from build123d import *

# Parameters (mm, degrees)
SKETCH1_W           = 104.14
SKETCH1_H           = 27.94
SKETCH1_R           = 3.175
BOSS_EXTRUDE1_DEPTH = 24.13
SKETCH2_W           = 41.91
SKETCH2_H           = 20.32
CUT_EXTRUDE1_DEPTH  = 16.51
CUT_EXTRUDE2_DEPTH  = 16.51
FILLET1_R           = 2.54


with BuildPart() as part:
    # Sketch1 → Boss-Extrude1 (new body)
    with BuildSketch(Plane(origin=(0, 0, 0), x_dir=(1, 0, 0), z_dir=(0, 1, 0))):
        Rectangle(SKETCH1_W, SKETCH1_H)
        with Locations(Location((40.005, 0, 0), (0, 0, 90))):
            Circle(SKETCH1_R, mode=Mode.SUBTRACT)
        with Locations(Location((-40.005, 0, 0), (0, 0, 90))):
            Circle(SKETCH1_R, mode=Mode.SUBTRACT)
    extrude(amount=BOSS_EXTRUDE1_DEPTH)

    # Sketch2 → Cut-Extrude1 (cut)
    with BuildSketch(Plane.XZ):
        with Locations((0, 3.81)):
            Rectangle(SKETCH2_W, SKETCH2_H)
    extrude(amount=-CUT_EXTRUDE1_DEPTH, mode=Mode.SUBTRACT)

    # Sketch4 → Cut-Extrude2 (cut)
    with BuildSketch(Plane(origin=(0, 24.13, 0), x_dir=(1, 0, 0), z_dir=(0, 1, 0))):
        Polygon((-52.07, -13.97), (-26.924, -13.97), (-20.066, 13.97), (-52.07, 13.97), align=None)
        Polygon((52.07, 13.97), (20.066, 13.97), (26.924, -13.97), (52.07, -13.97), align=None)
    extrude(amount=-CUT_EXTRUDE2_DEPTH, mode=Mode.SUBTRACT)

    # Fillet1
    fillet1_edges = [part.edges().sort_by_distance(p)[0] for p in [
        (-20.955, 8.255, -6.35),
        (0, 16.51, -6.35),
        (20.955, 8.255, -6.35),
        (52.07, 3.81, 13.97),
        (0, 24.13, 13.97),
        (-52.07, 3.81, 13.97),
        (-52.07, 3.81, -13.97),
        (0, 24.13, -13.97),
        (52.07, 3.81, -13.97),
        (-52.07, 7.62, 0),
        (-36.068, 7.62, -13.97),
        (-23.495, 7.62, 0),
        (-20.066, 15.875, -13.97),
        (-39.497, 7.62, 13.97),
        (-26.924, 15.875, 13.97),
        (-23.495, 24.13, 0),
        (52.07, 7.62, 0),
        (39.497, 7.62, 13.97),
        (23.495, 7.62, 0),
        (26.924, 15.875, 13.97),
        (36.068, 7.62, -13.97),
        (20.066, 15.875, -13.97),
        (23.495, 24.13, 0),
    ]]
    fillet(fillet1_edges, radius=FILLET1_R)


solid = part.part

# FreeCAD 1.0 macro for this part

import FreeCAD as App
import Part
import Sketcher
from FreeCAD import Vector
Q = App.Units.Quantity


def edges_at(feature, points):
    """Names of the edges that pass closest to the given points."""
    edges = feature.Shape.Edges
    near = lambda p: min(range(len(edges)), key=lambda i: edges[i].distToShape(Part.Vertex(*p))[0])
    return sorted({f"Edge{near(p) + 1}" for p in points})


def add_polygon(sketch, points):
    """Adds a closed chain of lines whose ends are joined by coincident constraints."""
    first, n = sketch.GeometryCount, len(points)
    for a, b in zip(points, points[1:] + points[:1]):
        sketch.addGeometry(Part.LineSegment(App.Vector(*a, 0), App.Vector(*b, 0)), False)
    for i in range(n):
        sketch.addConstraint(Sketcher.Constraint("Coincident", first + i, 2, first + (i + 1) % n, 1))

doc = App.newDocument("Part")
body = doc.addObject("PartDesign::Body", "Body")

sketch1 = body.newObject("Sketcher::SketchObject", "Sketch")
sketch1.AttachmentSupport = (doc.getObject("XZ_Plane"), [""])
sketch1.MapMode = "FlatFace"
add_polygon(sketch1, [(-52.1, -14), (-52.1, 14), (52.1, 14), (52.1, -14)])
sketch1.addGeometry(Part.Circle(Vector(-40, 0, 0), Vector(0, 0, 1), 3.2), False)
sketch1.addGeometry(Part.Circle(Vector(40, 0, 0), Vector(0, 0, 1), 3.2), False)
sketch1.addConstraint(Sketcher.Constraint("Vertical", 0))
sketch1.addConstraint(Sketcher.Constraint("Horizontal", 1))
sketch1.addConstraint(Sketcher.Constraint("Vertical", 2))
sketch1.addConstraint(Sketcher.Constraint("Horizontal", 3))
sketch1.addConstraint(Sketcher.Constraint("Equal", 4, 5))
sketch1.addConstraint(Sketcher.Constraint("Symmetric", 4, 3, 5, 3, -1, 1))
sketch1.addConstraint(Sketcher.Constraint("Symmetric", 0, 2, 2, 2, -1, 1))
sketch1.addConstraint(Sketcher.Constraint("PointOnObject", 4, 3, -1))
sketch1.addConstraint(Sketcher.Constraint("Diameter", 4, Q("0.25 in")))
sketch1.addConstraint(Sketcher.Constraint("DistanceX", 1, 1, 1, 2, Q("4.1 in")))
sketch1.addConstraint(Sketcher.Constraint("DistanceY", 0, 1, 0, 2, Q("1.1 in")))
sketch1.addConstraint(Sketcher.Constraint("DistanceX", 4, 3, 5, 3, Q("3.15 in")))
pad1 = body.newObject("PartDesign::Pad", "Pad")
pad1.Profile = sketch1
pad1.Length = Q("0.95 in")
pad1.Reversed = True

sketch2 = body.newObject("Sketcher::SketchObject", "Sketch001")
sketch2.AttachmentSupport = (doc.getObject("XZ_Plane"), [""])
sketch2.MapMode = "FlatFace"
add_polygon(sketch2, [(-21, 14), (-21, -6), (21, -6), (21, 14)])
sketch2.addConstraint(Sketcher.Constraint("Vertical", 0))
sketch2.addConstraint(Sketcher.Constraint("Horizontal", 1))
sketch2.addConstraint(Sketcher.Constraint("Vertical", 2))
sketch2.addConstraint(Sketcher.Constraint("Horizontal", 3))
sketch2.addConstraint(Sketcher.Constraint("DistanceY", 0, 2, 0, 1, Q("0.8 in")))
sketch2.addConstraint(Sketcher.Constraint("DistanceX", 1, 1, 1, 2, Q("1.65 in")))
sketch2.addConstraint(Sketcher.Constraint("DistanceY", 0, 2, -1, 1, Q("0.25 in")))
sketch2.addConstraint(Sketcher.Constraint("DistanceX", 0, 2, -1, 1, Q("0.825 in")))
pocket1 = body.newObject("PartDesign::Pocket", "Pocket")
pocket1.Profile = sketch2
pocket1.Length = Q("0.65 in")

sketch3 = body.newObject("Sketcher::SketchObject", "Sketch002")
sketch3.AttachmentSupport = (doc.getObject("XZ_Plane"), [""])
sketch3.MapMode = "FlatFace"
sketch3.AttachmentOffset = App.Placement(Vector(0, 0, -0.95 * 25.4), App.Rotation())
add_polygon(sketch3, [(-52, 14), (-27, 14), (-20, -14), (-52, -14)])
add_polygon(sketch3, [(52, -14), (20, -14), (27, 14), (52, 14)])
sketch3.addConstraint(Sketcher.Constraint("Horizontal", 0))
sketch3.addConstraint(Sketcher.Constraint("Horizontal", 2))
sketch3.addConstraint(Sketcher.Constraint("Vertical", 3))
sketch3.addConstraint(Sketcher.Constraint("Horizontal", 4))
sketch3.addConstraint(Sketcher.Constraint("Horizontal", 6))
sketch3.addConstraint(Sketcher.Constraint("Vertical", 7))
sketch3.addConstraint(Sketcher.Constraint("Symmetric", 2, 2, 6, 2, -1, 1))
sketch3.addConstraint(Sketcher.Constraint("Symmetric", 1, 2, 4, 2, -2))
sketch3.addConstraint(Sketcher.Constraint("Symmetric", 0, 2, 5, 2, -2))
sketch3.addConstraint(Sketcher.Constraint("DistanceY", 3, 1, 3, 2, Q("1.1 in")))
sketch3.addConstraint(Sketcher.Constraint("DistanceX", 0, 1, 0, 2, Q("0.99 in")))
sketch3.addConstraint(Sketcher.Constraint("DistanceX", 2, 2, 2, 1, Q("1.26 in")))
sketch3.addConstraint(Sketcher.Constraint("DistanceX", 3, 2, 6, 2, Q("4.1 in")))
pocket2 = body.newObject("PartDesign::Pocket", "Pocket001")
pocket2.Profile = sketch3
pocket2.Length = Q("0.65 in")
pocket2.Reversed = True
doc.recompute()

fillet = body.newObject("PartDesign::Fillet", "Fillet")
fillet.Base = (pocket2, edges_at(pocket2, [
    (-20.955, 8.255, -6.35),
    (0, 16.51, -6.35),
    (20.955, 8.255, -6.35),
    (52.07, 3.81, 13.97),
    (0, 24.13, 13.97),
    (-52.07, 3.81, 13.97),
    (-52.07, 3.81, -13.97),
    (0, 24.13, -13.97),
    (52.07, 3.81, -13.97),
    (-52.07, 7.62, 0),
    (-36.068, 7.62, -13.97),
    (-23.495, 7.62, 0),
    (-20.066, 15.875, -13.97),
    (-39.497, 7.62, 13.97),
    (-26.924, 15.875, 13.97),
    (-23.495, 24.13, 0),
    (52.07, 7.62, 0),
    (39.497, 7.62, 13.97),
    (23.495, 7.62, 0),
    (26.924, 15.875, 13.97),
    (36.068, 7.62, -13.97),
    (20.066, 15.875, -13.97),
    (23.495, 24.13, 0),
]))
fillet.Radius = Q("0.1 in")

doc.recompute()
